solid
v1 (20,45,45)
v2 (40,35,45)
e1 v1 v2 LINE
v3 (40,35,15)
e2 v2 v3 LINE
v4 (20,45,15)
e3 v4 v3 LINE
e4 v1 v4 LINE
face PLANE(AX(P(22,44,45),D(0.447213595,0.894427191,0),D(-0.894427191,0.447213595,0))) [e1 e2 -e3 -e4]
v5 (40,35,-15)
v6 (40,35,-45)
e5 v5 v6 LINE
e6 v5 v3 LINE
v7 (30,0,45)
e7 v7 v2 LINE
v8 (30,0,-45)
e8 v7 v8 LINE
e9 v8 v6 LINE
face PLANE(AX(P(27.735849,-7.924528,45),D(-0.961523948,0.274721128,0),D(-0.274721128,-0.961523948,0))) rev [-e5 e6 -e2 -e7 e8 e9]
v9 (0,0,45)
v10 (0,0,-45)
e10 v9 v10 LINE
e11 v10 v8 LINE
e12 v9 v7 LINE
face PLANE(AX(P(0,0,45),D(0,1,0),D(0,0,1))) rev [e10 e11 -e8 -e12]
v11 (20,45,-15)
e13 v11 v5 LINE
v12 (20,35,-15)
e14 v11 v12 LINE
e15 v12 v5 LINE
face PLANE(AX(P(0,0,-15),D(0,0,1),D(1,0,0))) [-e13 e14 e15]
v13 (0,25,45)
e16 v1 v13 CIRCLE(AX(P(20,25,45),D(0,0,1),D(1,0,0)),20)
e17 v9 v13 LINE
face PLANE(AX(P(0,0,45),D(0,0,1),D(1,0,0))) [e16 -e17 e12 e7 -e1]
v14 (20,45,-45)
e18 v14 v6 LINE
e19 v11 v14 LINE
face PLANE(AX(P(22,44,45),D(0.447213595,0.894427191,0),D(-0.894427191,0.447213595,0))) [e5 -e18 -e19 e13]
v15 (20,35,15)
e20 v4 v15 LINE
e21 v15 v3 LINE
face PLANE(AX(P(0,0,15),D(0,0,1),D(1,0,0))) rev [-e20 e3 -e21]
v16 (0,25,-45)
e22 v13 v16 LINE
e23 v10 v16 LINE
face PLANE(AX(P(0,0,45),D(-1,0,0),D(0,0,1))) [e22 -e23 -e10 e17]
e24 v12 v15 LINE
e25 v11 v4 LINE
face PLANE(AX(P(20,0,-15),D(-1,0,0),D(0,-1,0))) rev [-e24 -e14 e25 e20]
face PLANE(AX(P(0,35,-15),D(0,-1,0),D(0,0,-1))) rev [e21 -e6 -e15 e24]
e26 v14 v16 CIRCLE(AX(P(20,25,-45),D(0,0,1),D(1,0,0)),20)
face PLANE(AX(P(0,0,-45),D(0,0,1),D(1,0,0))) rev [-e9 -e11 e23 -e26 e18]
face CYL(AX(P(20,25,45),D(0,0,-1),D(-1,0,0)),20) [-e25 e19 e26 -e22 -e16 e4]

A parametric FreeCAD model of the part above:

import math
import FreeCAD as App
import Part
import Sketcher

V = App.Vector

doc = App.newDocument("Part")
body = doc.addObject("PartDesign::Body", "Body")

# Sketch on XY plane
sketch1 = body.newObject("Sketcher::SketchObject", "Sketch")
sketch1.AttachmentSupport = (doc.getObject("XY_Plane"), [""])
sketch1.MapMode = "FlatFace"
sketch1.addGeometry([
    Part.LineSegment(V(30, 0, 0), V(40, 35, 0)),  # 0
    Part.LineSegment(V(40, 35, 0), V(20, 45, 0)),  # 1
    Part.ArcOfCircle(Part.Circle(V(20, 25, 0), V(0, 0, 1), 20), math.radians(90), math.radians(180)),  # 2
    Part.LineSegment(V(0, 25, 0), V(0, 0, 0)),  # 3
    Part.LineSegment(V(0, 0, 0), V(30, 0, 0)),  # 4
], False)
sketch1.addConstraint([
    Sketcher.Constraint("Coincident", 0, 2, 1, 1),
    Sketcher.Constraint("Coincident", 1, 2, 2, 1),
    Sketcher.Constraint("Tangent", 2, 2, 3, 1),
    Sketcher.Constraint("Coincident", 3, 2, 4, 1),
    Sketcher.Constraint("Coincident", 4, 2, 0, 1),
    Sketcher.Constraint("Vertical", 3),
    Sketcher.Constraint("Horizontal", 4),
    Sketcher.Constraint("Coincident", 3, 2, -1, 1),
    Sketcher.Constraint("Vertical", 2, 3, 1, 2),
    Sketcher.Constraint("Radius", 2, 20.0),
    Sketcher.Constraint("DistanceX", 4, 1, 4, 2, 30.0),
    Sketcher.Constraint("DistanceY", 3, 2, 3, 1, 25.0),
    Sketcher.Constraint("DistanceX", -1, 1, 0, 2, 40.0),
    Sketcher.Constraint("DistanceY", -1, 1, 0, 2, 35.0),
])
pad1 = body.newObject("PartDesign::Pad", "Pad")
pad1.Profile = sketch1
pad1.Length = 90
pad1.Midplane = True

# Sketch on XY plane
sketch2 = body.newObject("Sketcher::SketchObject", "Sketch001")
sketch2.AttachmentSupport = (doc.getObject("XY_Plane"), [""])
sketch2.MapMode = "FlatFace"
sketch2.addGeometry([
    Part.LineSegment(V(40, 35, 0), V(20, 45, 0)),
    Part.LineSegment(V(20, 45, 0), V(20, 35, 0)),
    Part.LineSegment(V(20, 35, 0), V(40, 35, 0)),
], False)
sketch2.addConstraint([
    Sketcher.Constraint("Coincident", 0, 2, 1, 1),
    Sketcher.Constraint("Coincident", 1, 2, 2, 1),
    Sketcher.Constraint("Coincident", 2, 2, 0, 1),
    Sketcher.Constraint("Vertical", 1),
    Sketcher.Constraint("Horizontal", 2),
    Sketcher.Constraint("DistanceX", 2, 1, 2, 2, 20.0),
    Sketcher.Constraint("DistanceY", 1, 2, 1, 1, 10.0),
    Sketcher.Constraint("DistanceX", -1, 1, 0, 2, 20.0),
    Sketcher.Constraint("DistanceY", -1, 1, 0, 2, 45.0),
])
pocket1 = body.newObject("PartDesign::Pocket", "Pocket")
pocket1.Profile = sketch2
pocket1.Length = 30
pocket1.Midplane = True

doc.recompute()
